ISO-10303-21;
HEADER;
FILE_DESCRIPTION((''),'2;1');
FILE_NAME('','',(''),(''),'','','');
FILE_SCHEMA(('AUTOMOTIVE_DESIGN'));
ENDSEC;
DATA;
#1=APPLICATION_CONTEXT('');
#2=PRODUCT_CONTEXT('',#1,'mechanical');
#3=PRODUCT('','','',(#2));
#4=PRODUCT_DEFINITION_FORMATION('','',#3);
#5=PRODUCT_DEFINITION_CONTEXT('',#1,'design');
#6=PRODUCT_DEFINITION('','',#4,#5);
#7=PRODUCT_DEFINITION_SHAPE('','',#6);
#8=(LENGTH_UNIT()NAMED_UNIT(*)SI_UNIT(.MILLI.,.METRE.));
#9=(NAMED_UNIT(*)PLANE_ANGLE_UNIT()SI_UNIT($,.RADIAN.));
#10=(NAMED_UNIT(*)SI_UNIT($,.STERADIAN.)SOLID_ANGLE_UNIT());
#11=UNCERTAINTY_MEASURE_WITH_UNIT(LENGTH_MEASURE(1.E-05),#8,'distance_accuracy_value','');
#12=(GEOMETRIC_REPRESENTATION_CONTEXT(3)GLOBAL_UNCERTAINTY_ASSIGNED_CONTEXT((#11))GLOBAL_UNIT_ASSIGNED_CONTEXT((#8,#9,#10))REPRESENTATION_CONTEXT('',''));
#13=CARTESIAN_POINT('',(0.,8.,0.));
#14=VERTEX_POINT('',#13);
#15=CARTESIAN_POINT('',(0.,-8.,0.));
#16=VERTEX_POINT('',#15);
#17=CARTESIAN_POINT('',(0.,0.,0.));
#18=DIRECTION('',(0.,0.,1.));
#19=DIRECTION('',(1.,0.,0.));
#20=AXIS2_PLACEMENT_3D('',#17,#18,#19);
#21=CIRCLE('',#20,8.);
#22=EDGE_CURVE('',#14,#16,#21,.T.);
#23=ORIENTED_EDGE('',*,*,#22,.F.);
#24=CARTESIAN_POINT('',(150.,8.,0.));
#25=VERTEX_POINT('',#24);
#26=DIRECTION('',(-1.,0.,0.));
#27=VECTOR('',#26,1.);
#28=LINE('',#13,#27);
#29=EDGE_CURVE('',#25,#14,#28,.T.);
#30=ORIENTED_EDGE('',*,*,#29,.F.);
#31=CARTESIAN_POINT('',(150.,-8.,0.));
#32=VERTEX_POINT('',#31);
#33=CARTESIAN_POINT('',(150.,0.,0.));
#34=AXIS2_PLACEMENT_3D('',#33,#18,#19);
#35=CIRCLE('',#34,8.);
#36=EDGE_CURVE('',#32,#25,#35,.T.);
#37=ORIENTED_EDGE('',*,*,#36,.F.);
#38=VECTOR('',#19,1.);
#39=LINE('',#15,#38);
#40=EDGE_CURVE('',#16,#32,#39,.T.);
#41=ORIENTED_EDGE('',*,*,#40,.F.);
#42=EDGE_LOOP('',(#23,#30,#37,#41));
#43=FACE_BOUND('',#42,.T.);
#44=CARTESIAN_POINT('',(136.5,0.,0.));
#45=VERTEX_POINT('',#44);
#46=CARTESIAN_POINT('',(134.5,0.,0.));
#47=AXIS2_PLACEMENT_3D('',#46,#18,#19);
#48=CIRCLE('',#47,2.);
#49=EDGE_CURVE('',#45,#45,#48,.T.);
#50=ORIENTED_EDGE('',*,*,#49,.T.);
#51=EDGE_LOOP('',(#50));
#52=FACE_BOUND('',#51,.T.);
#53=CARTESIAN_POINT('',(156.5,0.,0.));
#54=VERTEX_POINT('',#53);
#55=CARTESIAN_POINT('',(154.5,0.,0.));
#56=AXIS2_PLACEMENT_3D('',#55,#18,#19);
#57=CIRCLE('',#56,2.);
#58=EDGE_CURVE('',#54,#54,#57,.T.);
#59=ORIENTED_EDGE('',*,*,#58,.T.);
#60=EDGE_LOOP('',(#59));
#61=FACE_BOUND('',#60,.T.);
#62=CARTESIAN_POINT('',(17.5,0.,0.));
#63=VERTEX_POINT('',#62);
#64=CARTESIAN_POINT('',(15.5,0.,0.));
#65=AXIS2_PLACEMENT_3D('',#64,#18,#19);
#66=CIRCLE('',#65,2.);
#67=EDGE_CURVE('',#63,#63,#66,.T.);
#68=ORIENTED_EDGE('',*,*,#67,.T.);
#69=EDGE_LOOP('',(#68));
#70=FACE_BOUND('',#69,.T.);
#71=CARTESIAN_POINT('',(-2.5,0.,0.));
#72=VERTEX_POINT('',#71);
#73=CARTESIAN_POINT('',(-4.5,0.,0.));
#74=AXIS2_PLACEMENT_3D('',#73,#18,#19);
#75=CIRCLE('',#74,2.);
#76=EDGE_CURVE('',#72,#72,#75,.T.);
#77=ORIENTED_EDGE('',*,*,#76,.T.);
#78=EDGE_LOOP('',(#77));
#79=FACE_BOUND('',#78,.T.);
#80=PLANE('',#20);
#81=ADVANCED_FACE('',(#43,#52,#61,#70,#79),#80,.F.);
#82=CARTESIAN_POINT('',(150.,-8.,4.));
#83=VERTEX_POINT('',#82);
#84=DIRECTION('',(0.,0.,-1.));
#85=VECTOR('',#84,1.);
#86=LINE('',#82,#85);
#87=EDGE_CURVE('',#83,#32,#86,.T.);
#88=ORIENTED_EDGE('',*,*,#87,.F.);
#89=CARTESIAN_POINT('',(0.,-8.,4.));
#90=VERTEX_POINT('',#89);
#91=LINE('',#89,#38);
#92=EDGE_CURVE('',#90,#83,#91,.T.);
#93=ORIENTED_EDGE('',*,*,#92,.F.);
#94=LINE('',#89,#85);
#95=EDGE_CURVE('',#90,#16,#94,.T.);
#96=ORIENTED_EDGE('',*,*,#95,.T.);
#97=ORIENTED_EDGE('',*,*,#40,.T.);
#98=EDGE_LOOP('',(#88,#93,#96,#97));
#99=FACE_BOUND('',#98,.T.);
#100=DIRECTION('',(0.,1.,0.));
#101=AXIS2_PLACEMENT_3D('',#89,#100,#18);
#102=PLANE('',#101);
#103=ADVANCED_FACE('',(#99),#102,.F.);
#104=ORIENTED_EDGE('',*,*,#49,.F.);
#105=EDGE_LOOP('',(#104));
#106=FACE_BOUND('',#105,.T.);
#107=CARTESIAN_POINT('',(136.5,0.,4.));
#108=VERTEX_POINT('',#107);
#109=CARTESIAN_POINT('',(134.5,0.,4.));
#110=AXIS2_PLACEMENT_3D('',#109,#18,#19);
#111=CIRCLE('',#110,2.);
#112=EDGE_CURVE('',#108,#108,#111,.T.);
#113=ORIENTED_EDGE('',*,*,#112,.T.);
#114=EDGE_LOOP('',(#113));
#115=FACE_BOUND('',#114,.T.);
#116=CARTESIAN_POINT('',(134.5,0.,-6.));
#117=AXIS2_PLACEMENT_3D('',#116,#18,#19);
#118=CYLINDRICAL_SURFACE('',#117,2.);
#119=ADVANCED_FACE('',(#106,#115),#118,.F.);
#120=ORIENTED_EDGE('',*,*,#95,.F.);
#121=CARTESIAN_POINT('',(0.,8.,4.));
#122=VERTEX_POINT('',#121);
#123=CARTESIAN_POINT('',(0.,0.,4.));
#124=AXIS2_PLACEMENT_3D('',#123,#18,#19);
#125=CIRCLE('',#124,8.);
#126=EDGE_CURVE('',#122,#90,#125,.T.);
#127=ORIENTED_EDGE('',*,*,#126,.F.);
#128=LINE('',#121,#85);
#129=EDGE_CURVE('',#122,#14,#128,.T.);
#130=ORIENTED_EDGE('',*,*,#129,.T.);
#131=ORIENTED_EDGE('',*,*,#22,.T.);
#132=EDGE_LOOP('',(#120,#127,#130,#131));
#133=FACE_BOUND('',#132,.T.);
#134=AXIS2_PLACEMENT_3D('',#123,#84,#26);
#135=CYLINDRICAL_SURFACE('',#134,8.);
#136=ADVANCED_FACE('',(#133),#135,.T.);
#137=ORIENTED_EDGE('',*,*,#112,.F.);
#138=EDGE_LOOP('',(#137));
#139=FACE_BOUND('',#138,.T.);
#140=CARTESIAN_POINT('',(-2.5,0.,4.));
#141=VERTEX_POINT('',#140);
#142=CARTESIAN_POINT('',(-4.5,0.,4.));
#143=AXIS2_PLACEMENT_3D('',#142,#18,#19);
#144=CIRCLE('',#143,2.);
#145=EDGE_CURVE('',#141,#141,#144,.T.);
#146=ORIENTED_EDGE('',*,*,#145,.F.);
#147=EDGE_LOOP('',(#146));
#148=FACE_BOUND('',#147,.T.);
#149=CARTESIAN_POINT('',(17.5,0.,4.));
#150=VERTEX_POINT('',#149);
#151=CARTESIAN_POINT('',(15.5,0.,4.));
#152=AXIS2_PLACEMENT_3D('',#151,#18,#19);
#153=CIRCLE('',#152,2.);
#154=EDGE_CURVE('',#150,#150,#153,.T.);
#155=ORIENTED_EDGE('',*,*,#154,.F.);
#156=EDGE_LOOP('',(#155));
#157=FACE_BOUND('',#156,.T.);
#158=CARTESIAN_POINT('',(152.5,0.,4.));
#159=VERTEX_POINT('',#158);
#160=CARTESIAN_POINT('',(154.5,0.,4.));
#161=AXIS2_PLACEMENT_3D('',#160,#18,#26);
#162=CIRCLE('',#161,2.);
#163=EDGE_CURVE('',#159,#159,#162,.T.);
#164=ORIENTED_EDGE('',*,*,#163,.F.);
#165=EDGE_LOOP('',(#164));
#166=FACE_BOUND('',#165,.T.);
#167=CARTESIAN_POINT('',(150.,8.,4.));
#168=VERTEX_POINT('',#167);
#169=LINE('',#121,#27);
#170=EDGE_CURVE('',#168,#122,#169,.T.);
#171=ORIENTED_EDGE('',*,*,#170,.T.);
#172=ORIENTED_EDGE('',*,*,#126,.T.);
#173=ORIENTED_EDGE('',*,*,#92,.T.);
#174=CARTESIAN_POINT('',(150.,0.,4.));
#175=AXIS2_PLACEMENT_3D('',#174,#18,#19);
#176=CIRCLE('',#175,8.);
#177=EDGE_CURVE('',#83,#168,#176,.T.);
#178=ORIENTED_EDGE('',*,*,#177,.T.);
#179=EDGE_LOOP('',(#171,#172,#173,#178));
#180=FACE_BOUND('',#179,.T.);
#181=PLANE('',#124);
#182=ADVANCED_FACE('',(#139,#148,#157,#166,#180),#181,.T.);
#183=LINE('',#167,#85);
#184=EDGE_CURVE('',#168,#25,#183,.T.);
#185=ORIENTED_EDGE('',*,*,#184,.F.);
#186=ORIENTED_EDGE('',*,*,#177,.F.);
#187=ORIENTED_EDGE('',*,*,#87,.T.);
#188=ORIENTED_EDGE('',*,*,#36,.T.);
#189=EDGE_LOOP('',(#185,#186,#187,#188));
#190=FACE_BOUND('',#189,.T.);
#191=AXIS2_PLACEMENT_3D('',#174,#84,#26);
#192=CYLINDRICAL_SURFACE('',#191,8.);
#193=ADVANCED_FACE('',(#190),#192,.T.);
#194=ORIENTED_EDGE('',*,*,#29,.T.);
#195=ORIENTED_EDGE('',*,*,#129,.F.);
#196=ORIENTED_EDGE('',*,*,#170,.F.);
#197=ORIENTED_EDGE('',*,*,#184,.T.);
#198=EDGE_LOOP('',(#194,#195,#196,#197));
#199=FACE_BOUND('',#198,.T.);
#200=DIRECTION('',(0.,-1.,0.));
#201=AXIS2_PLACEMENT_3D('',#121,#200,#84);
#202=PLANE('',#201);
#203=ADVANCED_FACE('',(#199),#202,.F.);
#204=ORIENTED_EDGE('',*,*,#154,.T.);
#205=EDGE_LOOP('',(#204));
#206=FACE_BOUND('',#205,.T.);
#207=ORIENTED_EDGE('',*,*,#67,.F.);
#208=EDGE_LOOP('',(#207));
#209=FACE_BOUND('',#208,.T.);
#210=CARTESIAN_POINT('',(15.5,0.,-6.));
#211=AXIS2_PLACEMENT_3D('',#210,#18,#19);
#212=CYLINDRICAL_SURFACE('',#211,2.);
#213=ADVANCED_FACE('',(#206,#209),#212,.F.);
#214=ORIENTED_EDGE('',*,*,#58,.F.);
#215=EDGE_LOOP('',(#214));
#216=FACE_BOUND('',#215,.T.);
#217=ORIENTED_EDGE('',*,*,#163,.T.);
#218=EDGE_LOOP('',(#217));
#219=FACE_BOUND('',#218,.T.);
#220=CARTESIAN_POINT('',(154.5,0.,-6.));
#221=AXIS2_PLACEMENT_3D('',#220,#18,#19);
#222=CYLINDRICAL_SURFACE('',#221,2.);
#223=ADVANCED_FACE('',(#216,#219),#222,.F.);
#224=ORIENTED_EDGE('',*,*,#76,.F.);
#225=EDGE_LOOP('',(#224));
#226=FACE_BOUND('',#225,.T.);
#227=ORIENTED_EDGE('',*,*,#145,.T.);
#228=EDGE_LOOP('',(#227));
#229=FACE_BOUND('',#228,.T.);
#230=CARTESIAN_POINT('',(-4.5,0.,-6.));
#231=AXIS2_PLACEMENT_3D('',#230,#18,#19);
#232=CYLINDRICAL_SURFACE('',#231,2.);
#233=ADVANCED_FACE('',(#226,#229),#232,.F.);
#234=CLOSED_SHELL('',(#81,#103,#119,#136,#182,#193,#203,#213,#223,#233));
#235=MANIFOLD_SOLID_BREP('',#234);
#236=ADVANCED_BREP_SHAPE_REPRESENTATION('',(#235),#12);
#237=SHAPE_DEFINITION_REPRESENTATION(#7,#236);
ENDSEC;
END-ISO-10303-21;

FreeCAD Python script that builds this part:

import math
import FreeCAD as App
import Part
import Sketcher

V = App.Vector

doc = App.newDocument("Part")
body = doc.addObject("PartDesign::Body", "Body")

sketch1 = body.newObject("Sketcher::SketchObject", "Sketch")
sketch1.AttachmentSupport = (doc.getObject("XY_Plane"), [""])
sketch1.MapMode = "FlatFace"
sketch1.addGeometry(Part.LineSegment(V(150, 8, 0), V(0, 8, 0)), False)
sketch1.addGeometry(Part.ArcOfCircle(Part.Circle(V(0, 0, 0), V(0, 0, 1), 8), math.radians(90), math.radians(270)), False)
sketch1.addGeometry(Part.LineSegment(V(0, -8, 0), V(150, -8, 0)), False)
sketch1.addGeometry(Part.ArcOfCircle(Part.Circle(V(150, 0, 0), V(0, 0, 1), 8), math.radians(-90), math.radians(90)), False)
sketch1.addConstraint(Sketcher.Constraint("Tangent", 0, 2, 1, 1))
sketch1.addConstraint(Sketcher.Constraint("Tangent", 1, 2, 2, 1))
sketch1.addConstraint(Sketcher.Constraint("Tangent", 2, 2, 3, 1))
sketch1.addConstraint(Sketcher.Constraint("Tangent", 3, 2, 0, 1))
sketch1.addConstraint(Sketcher.Constraint("Horizontal", 0))
sketch1.addConstraint(Sketcher.Constraint("Horizontal", 2))
sketch1.addConstraint(Sketcher.Constraint("Coincident", 1, 3, -1, 1))
sketch1.addConstraint(Sketcher.Constraint("Radius", 1, 8.0))
sketch1.addConstraint(Sketcher.Constraint("DistanceX", 0, 2, 0, 1, 150.0))
pad1 = body.newObject("PartDesign::Pad", "Pad")
pad1.Profile = sketch1
pad1.Length = 4

sketch2 = body.newObject("Sketcher::SketchObject", "Sketch001")
sketch2.AttachmentSupport = (doc.getObject("XY_Plane"), [""])
sketch2.MapMode = "FlatFace"
sketch2.AttachmentOffset = App.Placement(V(0, 0, 4), App.Rotation())
sketch2.addGeometry(Part.Circle(V(15.5, 0, 0), V(0, 0, 1), 2), False)
sketch2.addGeometry(Part.Circle(V(134.5, 0, 0), V(0, 0, 1), 2), False)
sketch2.addGeometry(Part.Circle(V(-4.5, 0, 0), V(0, 0, 1), 2), False)
sketch2.addGeometry(Part.Circle(V(154.5, 0, 0), V(0, 0, 1), 2), False)
sketch2.addConstraint(Sketcher.Constraint("Equal", 0, 1))
sketch2.addConstraint(Sketcher.Constraint("Equal", 1, 2))
sketch2.addConstraint(Sketcher.Constraint("Equal", 2, 3))
sketch2.addConstraint(Sketcher.Constraint("PointOnObject", 0, 3, -1))
sketch2.addConstraint(Sketcher.Constraint("PointOnObject", 1, 3, -1))
sketch2.addConstraint(Sketcher.Constraint("PointOnObject", 2, 3, -1))
sketch2.addConstraint(Sketcher.Constraint("PointOnObject", 3, 3, -1))
sketch2.addConstraint(Sketcher.Constraint("Diameter", 0, 4.0))
sketch2.addConstraint(Sketcher.Constraint("DistanceX", 0, 3, 1, 3, 119.0))
sketch2.addConstraint(Sketcher.Constraint("DistanceX", 2, 3, 0, 3, 20.0))
sketch2.addConstraint(Sketcher.Constraint("DistanceX", 1, 3, 3, 3, 20.0))
sketch2.addConstraint(Sketcher.Constraint("DistanceX", -1, 1, 0, 3, 15.5))
pocket1 = body.newObject("PartDesign::Pocket", "Pocket")
pocket1.Profile = sketch2
pocket1.Length = 10

doc.recompute()
